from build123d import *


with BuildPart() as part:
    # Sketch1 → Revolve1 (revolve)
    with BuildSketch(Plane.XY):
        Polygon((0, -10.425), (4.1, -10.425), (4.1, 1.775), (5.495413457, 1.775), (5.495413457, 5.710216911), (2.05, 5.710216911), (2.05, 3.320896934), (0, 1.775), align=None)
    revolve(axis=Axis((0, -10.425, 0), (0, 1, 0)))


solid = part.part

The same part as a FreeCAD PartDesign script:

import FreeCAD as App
import Part
import Sketcher

V = App.Vector
Q = App.Units.Quantity


def add_polygon(sketch, points):
    """Adds a closed chain of lines whose ends are joined by coincident constraints."""
    first, n = sketch.GeometryCount, len(points)
    for a, b in zip(points, points[1:] + points[:1]):
        sketch.addGeometry(Part.LineSegment(App.Vector(*a, 0), App.Vector(*b, 0)), False)
    for i in range(n):
        sketch.addConstraint(Sketcher.Constraint("Coincident", first + i, 2, first + (i + 1) % n, 1))

doc = App.newDocument("Part")
body = doc.addObject("PartDesign::Body", "Body")

# Sketch on XY plane
sketch1 = body.newObject("Sketcher::SketchObject", "Sketch")
sketch1.AttachmentSupport = (doc.getObject("XY_Plane"), [""])
sketch1.MapMode = "FlatFace"
add_polygon(sketch1, [(0, -10.4), (4.1, -10.4), (4.1, 1.8), (5.5, 1.8), (5.5, 5.7), (2, 5.7), (2, 3.3), (0, 1.8)])  # lines 0-7
sketch1.addConstraint([
    Sketcher.Constraint("Horizontal", 0),
    Sketcher.Constraint("Vertical", 1),
    Sketcher.Constraint("Horizontal", 2),
    Sketcher.Constraint("Vertical", 3),
    Sketcher.Constraint("Horizontal", 4),
    Sketcher.Constraint("Vertical", 5),
    Sketcher.Constraint("Vertical", 7),
    Sketcher.Constraint("PointOnObject", 6, 2, -2),
    Sketcher.Constraint("Horizontal", 2, 2, 6, 2),
    Sketcher.Constraint("DistanceX", 0, 1, 0, 2, Q("4.1 mm")),
    Sketcher.Constraint("DistanceY", 1, 1, 1, 2, Q("12.2 mm")),
    Sketcher.Constraint("DistanceX", -1, 1, 4, 2, Q("2.05 mm")),
    Sketcher.Constraint("DistanceY", 0, 2, -1, 1, Q("10.425 mm")),
    Sketcher.Constraint("DistanceY", 5, 2, 5, 1, Q("2.38932 mm")),
    Sketcher.Constraint("DistanceX", 2, 1, 2, 2, Q("1.395413 mm")),
    Sketcher.Constraint("DistanceY", 3, 1, 3, 2, Q("3.935217 mm")),
])
revolution = body.newObject("PartDesign::Revolution", "Revolution")
revolution.Profile = sketch1
revolution.ReferenceAxis = (sketch1, ["V_Axis"])
revolution.Angle = 360

doc.recompute()
